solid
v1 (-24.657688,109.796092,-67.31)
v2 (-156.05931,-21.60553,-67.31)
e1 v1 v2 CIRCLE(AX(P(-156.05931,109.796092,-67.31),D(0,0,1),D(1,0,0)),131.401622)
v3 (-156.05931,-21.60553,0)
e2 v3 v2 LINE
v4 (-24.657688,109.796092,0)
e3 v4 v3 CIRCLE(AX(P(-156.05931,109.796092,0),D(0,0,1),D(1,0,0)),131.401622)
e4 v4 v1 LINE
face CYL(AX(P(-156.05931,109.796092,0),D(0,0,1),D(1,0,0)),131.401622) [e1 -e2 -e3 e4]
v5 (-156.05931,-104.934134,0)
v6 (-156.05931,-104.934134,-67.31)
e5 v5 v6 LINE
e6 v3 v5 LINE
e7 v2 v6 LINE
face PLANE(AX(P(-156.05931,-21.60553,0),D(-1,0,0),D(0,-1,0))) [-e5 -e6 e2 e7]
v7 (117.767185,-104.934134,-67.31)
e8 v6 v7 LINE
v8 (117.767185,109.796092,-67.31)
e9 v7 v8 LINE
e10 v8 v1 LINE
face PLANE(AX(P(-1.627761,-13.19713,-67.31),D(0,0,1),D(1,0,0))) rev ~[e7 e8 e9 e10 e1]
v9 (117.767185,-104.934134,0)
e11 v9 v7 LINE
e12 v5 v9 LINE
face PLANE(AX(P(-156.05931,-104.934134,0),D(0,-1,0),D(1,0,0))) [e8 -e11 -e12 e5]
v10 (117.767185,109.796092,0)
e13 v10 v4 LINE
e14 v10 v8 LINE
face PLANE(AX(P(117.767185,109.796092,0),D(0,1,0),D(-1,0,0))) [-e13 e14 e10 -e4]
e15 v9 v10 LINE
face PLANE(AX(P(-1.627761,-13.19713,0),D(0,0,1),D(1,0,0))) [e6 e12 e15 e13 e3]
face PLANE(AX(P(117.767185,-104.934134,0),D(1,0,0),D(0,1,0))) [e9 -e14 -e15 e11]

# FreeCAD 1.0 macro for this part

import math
import FreeCAD as App
import Part
import Sketcher
from FreeCAD import Vector
Q = App.Units.Quantity

doc = App.newDocument("Part")
body = doc.addObject("PartDesign::Body", "Body")

# Sketch on XY plane
sketch1 = body.newObject("Sketcher::SketchObject", "Sketch")
sketch1.AttachmentSupport = (doc.getObject("XY_Plane"), [""])
sketch1.MapMode = "FlatFace"
sketch1.addGeometry([
    Part.LineSegment(Vector(-156, -105, 0), Vector(118, -105, 0)),  # 0
    Part.LineSegment(Vector(118, -105, 0), Vector(118, 110, 0)),  # 1
    Part.LineSegment(Vector(118, 110, 0), Vector(-25, 110, 0)),  # 2
    Part.ArcOfCircle(Part.Circle(Vector(-156, 110, 0), Vector(0, 0, 1), 131), math.radians(0), math.radians(270)),  # 3
    Part.LineSegment(Vector(-156, -22, 0), Vector(-156, -105, 0)),  # 4
], False)
sketch1.addConstraint([
    Sketcher.Constraint("Coincident", 0, 2, 1, 1),
    Sketcher.Constraint("Coincident", 1, 2, 2, 1),
    Sketcher.Constraint("Coincident", 2, 2, 3, 1),
    Sketcher.Constraint("Coincident", 3, 2, 4, 1),
    Sketcher.Constraint("Coincident", 4, 2, 0, 1),
    Sketcher.Constraint("Horizontal", 0),
    Sketcher.Constraint("Vertical", 1),
    Sketcher.Constraint("Horizontal", 2),
    Sketcher.Constraint("Vertical", 4),
    Sketcher.Constraint("Horizontal", 3, 3, 1, 2),
    Sketcher.Constraint("Radius", 3, Q("131.401622 mm")),
    Sketcher.Constraint("DistanceX", 0, 1, 0, 2, Q("273.826495 mm")),
    Sketcher.Constraint("DistanceX", 2, 2, 2, 1, Q("142.424873 mm")),
    Sketcher.Constraint("DistanceY", 1, 1, 1, 2, Q("214.730226 mm")),
    Sketcher.Constraint("DistanceX", 3, 3, -1, 1, Q("156.05931 mm")),
    Sketcher.Constraint("DistanceY", -1, 1, 3, 3, Q("109.796092 mm")),
])
pad1 = body.newObject("PartDesign::Pad", "Pad")
pad1.Profile = sketch1
pad1.Length = Q("2.65 in")
pad1.Reversed = True

doc.recompute()
